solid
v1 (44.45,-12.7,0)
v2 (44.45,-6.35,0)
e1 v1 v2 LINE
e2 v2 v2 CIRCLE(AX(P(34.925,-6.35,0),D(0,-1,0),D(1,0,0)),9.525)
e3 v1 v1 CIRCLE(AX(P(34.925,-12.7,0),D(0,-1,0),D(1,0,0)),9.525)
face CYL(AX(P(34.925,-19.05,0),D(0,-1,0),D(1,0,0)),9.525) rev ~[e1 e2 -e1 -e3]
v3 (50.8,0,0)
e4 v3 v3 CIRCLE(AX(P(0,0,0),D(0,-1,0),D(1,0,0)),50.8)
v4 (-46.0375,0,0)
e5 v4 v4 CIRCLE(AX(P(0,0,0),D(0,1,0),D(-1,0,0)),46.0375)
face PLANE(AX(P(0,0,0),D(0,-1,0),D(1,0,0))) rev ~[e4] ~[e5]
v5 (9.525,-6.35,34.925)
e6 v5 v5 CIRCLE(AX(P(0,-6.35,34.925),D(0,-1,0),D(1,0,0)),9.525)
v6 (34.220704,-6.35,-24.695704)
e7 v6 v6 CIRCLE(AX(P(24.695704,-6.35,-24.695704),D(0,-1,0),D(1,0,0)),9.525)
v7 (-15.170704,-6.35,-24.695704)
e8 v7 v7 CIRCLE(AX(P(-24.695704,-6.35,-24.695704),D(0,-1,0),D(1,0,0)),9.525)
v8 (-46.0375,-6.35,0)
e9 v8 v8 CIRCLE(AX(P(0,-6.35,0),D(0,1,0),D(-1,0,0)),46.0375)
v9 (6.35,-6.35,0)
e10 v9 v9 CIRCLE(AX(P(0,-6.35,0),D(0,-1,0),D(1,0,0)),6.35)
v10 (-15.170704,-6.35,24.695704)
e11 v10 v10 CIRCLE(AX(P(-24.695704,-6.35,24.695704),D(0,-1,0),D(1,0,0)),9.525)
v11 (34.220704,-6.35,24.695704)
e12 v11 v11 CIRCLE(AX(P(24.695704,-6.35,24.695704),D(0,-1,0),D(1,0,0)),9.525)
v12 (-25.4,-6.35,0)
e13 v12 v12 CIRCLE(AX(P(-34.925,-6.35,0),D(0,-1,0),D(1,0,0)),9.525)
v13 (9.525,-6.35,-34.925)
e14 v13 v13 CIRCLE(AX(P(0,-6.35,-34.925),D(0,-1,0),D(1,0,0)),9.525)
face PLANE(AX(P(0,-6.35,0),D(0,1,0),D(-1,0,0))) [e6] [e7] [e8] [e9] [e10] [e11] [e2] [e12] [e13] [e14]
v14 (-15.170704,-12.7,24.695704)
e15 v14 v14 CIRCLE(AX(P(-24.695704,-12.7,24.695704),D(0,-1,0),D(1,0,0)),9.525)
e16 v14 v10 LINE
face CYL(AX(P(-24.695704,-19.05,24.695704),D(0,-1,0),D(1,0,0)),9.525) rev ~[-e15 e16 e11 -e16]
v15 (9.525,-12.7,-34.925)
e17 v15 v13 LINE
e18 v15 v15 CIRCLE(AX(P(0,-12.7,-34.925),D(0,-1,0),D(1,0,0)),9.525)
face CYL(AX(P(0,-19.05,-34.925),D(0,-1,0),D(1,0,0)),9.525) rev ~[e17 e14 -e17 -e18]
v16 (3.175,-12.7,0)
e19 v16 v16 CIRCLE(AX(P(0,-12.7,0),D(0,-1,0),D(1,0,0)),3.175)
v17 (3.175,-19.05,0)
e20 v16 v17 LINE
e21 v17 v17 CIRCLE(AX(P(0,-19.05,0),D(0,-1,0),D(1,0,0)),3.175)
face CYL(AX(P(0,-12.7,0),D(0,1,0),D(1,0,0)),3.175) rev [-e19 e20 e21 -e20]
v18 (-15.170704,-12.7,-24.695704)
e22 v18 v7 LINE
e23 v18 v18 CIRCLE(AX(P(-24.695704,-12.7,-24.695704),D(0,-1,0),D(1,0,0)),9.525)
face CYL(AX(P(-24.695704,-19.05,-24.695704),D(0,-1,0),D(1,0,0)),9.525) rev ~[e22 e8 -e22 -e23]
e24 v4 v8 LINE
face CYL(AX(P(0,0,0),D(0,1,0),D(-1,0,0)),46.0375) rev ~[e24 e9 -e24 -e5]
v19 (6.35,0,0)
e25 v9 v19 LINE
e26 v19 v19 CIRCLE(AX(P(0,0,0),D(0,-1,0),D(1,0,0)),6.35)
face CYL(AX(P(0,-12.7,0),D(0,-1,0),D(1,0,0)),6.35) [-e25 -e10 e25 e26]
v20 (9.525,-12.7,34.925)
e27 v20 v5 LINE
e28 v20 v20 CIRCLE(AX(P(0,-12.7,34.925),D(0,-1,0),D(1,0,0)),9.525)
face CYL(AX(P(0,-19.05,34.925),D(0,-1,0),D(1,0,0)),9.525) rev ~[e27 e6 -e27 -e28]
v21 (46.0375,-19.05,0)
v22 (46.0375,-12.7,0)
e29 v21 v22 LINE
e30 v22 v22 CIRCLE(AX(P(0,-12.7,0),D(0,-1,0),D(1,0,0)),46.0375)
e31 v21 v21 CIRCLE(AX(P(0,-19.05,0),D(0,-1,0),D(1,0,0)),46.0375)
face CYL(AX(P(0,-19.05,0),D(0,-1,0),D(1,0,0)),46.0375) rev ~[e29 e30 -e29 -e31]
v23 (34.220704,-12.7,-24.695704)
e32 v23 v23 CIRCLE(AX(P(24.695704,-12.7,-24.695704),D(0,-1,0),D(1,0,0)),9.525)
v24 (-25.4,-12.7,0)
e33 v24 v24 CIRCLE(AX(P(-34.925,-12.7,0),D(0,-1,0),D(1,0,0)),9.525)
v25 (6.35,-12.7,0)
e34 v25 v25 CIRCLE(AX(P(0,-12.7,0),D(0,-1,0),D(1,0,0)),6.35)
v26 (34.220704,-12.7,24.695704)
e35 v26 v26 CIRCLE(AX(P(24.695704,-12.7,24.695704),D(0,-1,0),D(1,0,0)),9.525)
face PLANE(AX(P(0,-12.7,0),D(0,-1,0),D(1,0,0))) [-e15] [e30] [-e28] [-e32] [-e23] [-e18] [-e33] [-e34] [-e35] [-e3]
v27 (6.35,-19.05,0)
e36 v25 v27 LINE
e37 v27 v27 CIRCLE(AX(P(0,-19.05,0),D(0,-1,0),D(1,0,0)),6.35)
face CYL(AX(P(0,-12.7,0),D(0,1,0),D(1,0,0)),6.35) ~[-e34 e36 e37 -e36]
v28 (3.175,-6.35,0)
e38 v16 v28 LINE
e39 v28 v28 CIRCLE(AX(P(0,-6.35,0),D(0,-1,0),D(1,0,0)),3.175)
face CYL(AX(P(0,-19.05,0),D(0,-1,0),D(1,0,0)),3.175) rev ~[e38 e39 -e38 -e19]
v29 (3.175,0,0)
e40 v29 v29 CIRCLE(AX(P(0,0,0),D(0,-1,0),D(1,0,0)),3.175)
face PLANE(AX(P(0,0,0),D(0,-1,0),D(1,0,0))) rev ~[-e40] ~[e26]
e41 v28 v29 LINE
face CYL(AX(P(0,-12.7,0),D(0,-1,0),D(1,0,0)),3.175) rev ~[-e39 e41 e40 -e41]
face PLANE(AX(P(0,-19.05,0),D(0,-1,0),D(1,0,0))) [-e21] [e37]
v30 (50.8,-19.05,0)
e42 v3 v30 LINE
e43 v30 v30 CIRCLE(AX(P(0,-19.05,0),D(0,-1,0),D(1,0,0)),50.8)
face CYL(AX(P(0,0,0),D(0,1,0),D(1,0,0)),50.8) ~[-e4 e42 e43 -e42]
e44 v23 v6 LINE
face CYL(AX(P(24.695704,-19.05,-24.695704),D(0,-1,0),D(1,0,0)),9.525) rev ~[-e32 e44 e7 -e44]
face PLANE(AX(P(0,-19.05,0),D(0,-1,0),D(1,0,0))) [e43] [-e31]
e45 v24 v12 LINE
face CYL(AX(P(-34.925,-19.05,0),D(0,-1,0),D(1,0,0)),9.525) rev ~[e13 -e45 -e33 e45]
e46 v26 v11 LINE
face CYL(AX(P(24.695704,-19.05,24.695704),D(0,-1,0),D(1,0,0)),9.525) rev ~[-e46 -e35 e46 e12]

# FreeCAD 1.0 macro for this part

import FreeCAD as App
import Part
import Sketcher
Q = App.Units.Quantity

doc = App.newDocument("Part")
body = doc.addObject("PartDesign::Body", "Body")

# Sketch on XZ plane
sketch1 = body.newObject("Sketcher::SketchObject", "Sketch")
sketch1.AttachmentSupport = (doc.getObject("XZ_Plane"), [""])
sketch1.MapMode = "FlatFace"
sketch1.addGeometry(Part.Circle(App.Vector(0, 0, 0), App.Vector(0, 0, 1), 50.8), False)
sketch1.addConstraint([
    Sketcher.Constraint("Coincident", 0, 3, -1, 1),
    Sketcher.Constraint("Diameter", 0, Q("4 in")),
])
pad1 = body.newObject("PartDesign::Pad", "Pad")
pad1.Profile = sketch1
pad1.Length = Q("0.75 in")

# Sketch on XZ plane
sketch2 = body.newObject("Sketcher::SketchObject", "Sketch001")
sketch2.AttachmentSupport = (doc.getObject("XZ_Plane"), [""])
sketch2.MapMode = "FlatFace"
sketch2.AttachmentOffset = App.Placement(App.Vector(0, 0, 0.75 * 25.4), App.Rotation())
sketch2.addGeometry(Part.Circle(App.Vector(0, 0, 0), App.Vector(0, 0, 1), 3.175), False)
sketch2.addConstraint([
    Sketcher.Constraint("Coincident", 0, 3, -1, 1),
    Sketcher.Constraint("Diameter", 0, Q("0.25 in")),
])
pocket1 = body.newObject("PartDesign::Pocket", "Pocket")
pocket1.Profile = sketch2
pocket1.Type = "ThroughAll"

# Sketch on XZ plane
sketch3 = body.newObject("Sketcher::SketchObject", "Sketch002")
sketch3.AttachmentSupport = (doc.getObject("XZ_Plane"), [""])
sketch3.MapMode = "FlatFace"
sketch3.AttachmentOffset = App.Placement(App.Vector(0, 0, 0.75 * 25.4), App.Rotation())
sketch3.addGeometry([
    Part.Circle(App.Vector(-24.695704, 24.695704, 0), App.Vector(0, 0, 1), 9.525),  # 0
    Part.Circle(App.Vector(0, 34.925, 0), App.Vector(0, 0, 1), 9.525),  # 1
    Part.Circle(App.Vector(24.695704, -24.695704, 0), App.Vector(0, 0, 1), 9.525),  # 2
    Part.Circle(App.Vector(0, -34.925, 0), App.Vector(0, 0, 1), 9.525),  # 3
    Part.Circle(App.Vector(-24.695704, -24.695704, 0), App.Vector(0, 0, 1), 9.525),  # 4
    Part.Circle(App.Vector(-34.925, 0, 0), App.Vector(0, 0, 1), 9.525),  # 5
    Part.Circle(App.Vector(24.695704, 24.695704, 0), App.Vector(0, 0, 1), 9.525),  # 6
    Part.Circle(App.Vector(34.925, 0, 0), App.Vector(0, 0, 1), 9.525),  # 7
], False)
sketch3.addConstraint([
    Sketcher.Constraint("Equal", 0, 1),
    Sketcher.Constraint("Equal", 1, 2),
    Sketcher.Constraint("Equal", 2, 3),
    Sketcher.Constraint("Equal", 3, 4),
    Sketcher.Constraint("Equal", 4, 5),
    Sketcher.Constraint("Equal", 5, 6),
    Sketcher.Constraint("Equal", 6, 7),
    Sketcher.Constraint("Symmetric", 0, 3, 2, 3, -1, 1),
    Sketcher.Constraint("Symmetric", 1, 3, 3, 3, -1, 1),
    Sketcher.Constraint("Symmetric", 4, 3, 6, 3, -1, 1),
    Sketcher.Constraint("Symmetric", 5, 3, 7, 3, -1, 1),
    Sketcher.Constraint("Symmetric", 2, 3, 4, 3, -2),
    Sketcher.Constraint("PointOnObject", 1, 3, -2),
    Sketcher.Constraint("PointOnObject", 5, 3, -1),
    Sketcher.Constraint("Diameter", 0, Q("0.75 in")),
    Sketcher.Constraint("DistanceY", 3, 3, 1, 3, Q("2.75 in")),
    Sketcher.Constraint("DistanceX", 5, 3, -1, 1, Q("1.375 in")),
    Sketcher.Constraint("DistanceX", 0, 3, 2, 3, Q("49.391409 mm")),
    Sketcher.Constraint("DistanceY", 2, 3, 0, 3, Q("49.391409 mm")),
])
pocket2 = body.newObject("PartDesign::Pocket", "Pocket001")
pocket2.Profile = sketch3
pocket2.Type = "ThroughAll"

# Sketch on XZ plane
sketch4 = body.newObject("Sketcher::SketchObject", "Sketch003")
sketch4.AttachmentSupport = (doc.getObject("XZ_Plane"), [""])
sketch4.MapMode = "FlatFace"
sketch4.AttachmentOffset = App.Placement(App.Vector(0, 0, 0.75 * 25.4), App.Rotation())
sketch4.addGeometry([
    Part.Circle(App.Vector(0, 0, 0), App.Vector(0, 0, 1), 46.0375),  # 0
    Part.Circle(App.Vector(-24.695704, -24.695704, 0), App.Vector(0, 0, 1), 9.525),  # 1
    Part.Circle(App.Vector(0, -34.925, 0), App.Vector(0, 0, 1), 9.525),  # 2
    Part.Circle(App.Vector(24.695704, -24.695704, 0), App.Vector(0, 0, 1), 9.525),  # 3
    Part.Circle(App.Vector(-34.925, 0, 0), App.Vector(0, 0, 1), 9.525),  # 4
    Part.Circle(App.Vector(-24.695704, 24.695704, 0), App.Vector(0, 0, 1), 9.525),  # 5
    Part.Circle(App.Vector(0, 0, 0), App.Vector(0, 0, 1), 3.175),  # 6
    Part.Circle(App.Vector(34.925, 0, 0), App.Vector(0, 0, 1), 9.525),  # 7
    Part.Circle(App.Vector(0, 34.925, 0), App.Vector(0, 0, 1), 9.525),  # 8
    Part.Circle(App.Vector(24.695704, 24.695704, 0), App.Vector(0, 0, 1), 9.525),  # 9
], False)
sketch4.addConstraint([
    Sketcher.Constraint("Coincident", 0, 3, -1, 1),
    Sketcher.Constraint("Coincident", 6, 3, -1, 1),
    Sketcher.Constraint("Equal", 1, 2),
    Sketcher.Constraint("Equal", 2, 3),
    Sketcher.Constraint("Equal", 3, 4),
    Sketcher.Constraint("Equal", 4, 5),
    Sketcher.Constraint("Equal", 5, 7),
    Sketcher.Constraint("Equal", 7, 8),
    Sketcher.Constraint("Equal", 8, 9),
    Sketcher.Constraint("Symmetric", 3, 3, 5, 3, -1, 1),
    Sketcher.Constraint("Symmetric", 4, 3, 7, 3, -1, 1),
    Sketcher.Constraint("Symmetric", 2, 3, 8, 3, -1, 1),
    Sketcher.Constraint("Symmetric", 1, 3, 9, 3, -1, 1),
    Sketcher.Constraint("Symmetric", 1, 3, 3, 3, -2),
    Sketcher.Constraint("PointOnObject", 2, 3, -2),
    Sketcher.Constraint("PointOnObject", 4, 3, -1),
    Sketcher.Constraint("Diameter", 1, Q("0.75 in")),
    Sketcher.Constraint("Diameter", 6, Q("0.25 in")),
    Sketcher.Constraint("Diameter", 0, Q("3.625 in")),
    Sketcher.Constraint("DistanceY", 2, 3, -1, 1, Q("1.375 in")),
    Sketcher.Constraint("DistanceX", 4, 3, -1, 1, Q("1.375 in")),
    Sketcher.Constraint("DistanceX", 1, 3, 3, 3, Q("49.391409 mm")),
    Sketcher.Constraint("DistanceY", 1, 3, 5, 3, Q("49.391409 mm")),
])
pocket3 = body.newObject("PartDesign::Pocket", "Pocket002")
pocket3.Profile = sketch4
pocket3.Length = Q("0.25 in")

# Sketch on XZ plane
sketch5 = body.newObject("Sketcher::SketchObject", "Sketch004")
sketch5.AttachmentSupport = (doc.getObject("XZ_Plane"), [""])
sketch5.MapMode = "FlatFace"
sketch5.addGeometry([
    Part.Circle(App.Vector(0, 0, 0), App.Vector(0, 0, 1), 46.0375),  # 0
    Part.Circle(App.Vector(24.695704, -24.695704, 0), App.Vector(0, 0, 1), 9.525),  # 1
    Part.Circle(App.Vector(0, -34.925, 0), App.Vector(0, 0, 1), 9.525),  # 2
    Part.Circle(App.Vector(-24.695704, -24.695704, 0), App.Vector(0, 0, 1), 9.525),  # 3
    Part.Circle(App.Vector(34.925, 0, 0), App.Vector(0, 0, 1), 9.525),  # 4
    Part.Circle(App.Vector(24.695704, 24.695704, 0), App.Vector(0, 0, 1), 9.525),  # 5
    Part.Circle(App.Vector(0, 0, 0), App.Vector(0, 0, 1), 3.175),  # 6
    Part.Circle(App.Vector(-34.925, 0, 0), App.Vector(0, 0, 1), 9.525),  # 7
    Part.Circle(App.Vector(0, 34.925, 0), App.Vector(0, 0, 1), 9.525),  # 8
    Part.Circle(App.Vector(-24.695704, 24.695704, 0), App.Vector(0, 0, 1), 9.525),  # 9
], False)
sketch5.addConstraint([
    Sketcher.Constraint("Coincident", 0, 3, -1, 1),
    Sketcher.Constraint("Coincident", 6, 3, -1, 1),
    Sketcher.Constraint("Equal", 1, 2),
    Sketcher.Constraint("Equal", 2, 3),
    Sketcher.Constraint("Equal", 3, 4),
    Sketcher.Constraint("Equal", 4, 5),
    Sketcher.Constraint("Equal", 5, 7),
    Sketcher.Constraint("Equal", 7, 8),
    Sketcher.Constraint("Equal", 8, 9),
    Sketcher.Constraint("Symmetric", 3, 3, 5, 3, -1, 1),
    Sketcher.Constraint("Symmetric", 4, 3, 7, 3, -1, 1),
    Sketcher.Constraint("Symmetric", 2, 3, 8, 3, -1, 1),
    Sketcher.Constraint("Symmetric", 1, 3, 9, 3, -1, 1),
    Sketcher.Constraint("Symmetric", 1, 3, 3, 3, -2),
    Sketcher.Constraint("PointOnObject", 2, 3, -2),
    Sketcher.Constraint("PointOnObject", 4, 3, -1),
    Sketcher.Constraint("Diameter", 1, Q("0.75 in")),
    Sketcher.Constraint("Diameter", 6, Q("0.25 in")),
    Sketcher.Constraint("Diameter", 0, Q("3.625 in")),
    Sketcher.Constraint("DistanceY", 2, 3, -1, 1, Q("1.375 in")),
    Sketcher.Constraint("DistanceX", -1, 1, 4, 3, Q("1.375 in")),
    Sketcher.Constraint("DistanceX", 3, 3, 1, 3, Q("49.391409 mm")),
    Sketcher.Constraint("DistanceY", 1, 3, 5, 3, Q("49.391409 mm")),
])
pocket4 = body.newObject("PartDesign::Pocket", "Pocket003")
pocket4.Profile = sketch5
pocket4.Length = Q("0.25 in")
pocket4.Reversed = True

# Sketch on XZ plane
sketch6 = body.newObject("Sketcher::SketchObject", "Sketch005")
sketch6.AttachmentSupport = (doc.getObject("XZ_Plane"), [""])
sketch6.MapMode = "FlatFace"
sketch6.AttachmentOffset = App.Placement(App.Vector(0, 0, 0.5 * 25.4), App.Rotation())
sketch6.addGeometry([
    Part.Circle(App.Vector(0, 0, 0), App.Vector(0, 0, 1), 6.35),
    Part.Circle(App.Vector(0, 0, 0), App.Vector(0, 0, 1), 3.175),
], False)
sketch6.addConstraint([
    Sketcher.Constraint("Coincident", 0, 3, -1, 1),
    Sketcher.Constraint("Coincident", 1, 3, -1, 1),
    Sketcher.Constraint("Diameter", 0, Q("0.5 in")),
    Sketcher.Constraint("Diameter", 1, Q("0.25 in")),
])
pad2 = body.newObject("PartDesign::Pad", "Pad001")
pad2.Profile = sketch6
pad2.Type = "TwoLengths"
pad2.Length = Q("0.25 in")
pad2.Length2 = Q("0.5 in")

doc.recompute()
